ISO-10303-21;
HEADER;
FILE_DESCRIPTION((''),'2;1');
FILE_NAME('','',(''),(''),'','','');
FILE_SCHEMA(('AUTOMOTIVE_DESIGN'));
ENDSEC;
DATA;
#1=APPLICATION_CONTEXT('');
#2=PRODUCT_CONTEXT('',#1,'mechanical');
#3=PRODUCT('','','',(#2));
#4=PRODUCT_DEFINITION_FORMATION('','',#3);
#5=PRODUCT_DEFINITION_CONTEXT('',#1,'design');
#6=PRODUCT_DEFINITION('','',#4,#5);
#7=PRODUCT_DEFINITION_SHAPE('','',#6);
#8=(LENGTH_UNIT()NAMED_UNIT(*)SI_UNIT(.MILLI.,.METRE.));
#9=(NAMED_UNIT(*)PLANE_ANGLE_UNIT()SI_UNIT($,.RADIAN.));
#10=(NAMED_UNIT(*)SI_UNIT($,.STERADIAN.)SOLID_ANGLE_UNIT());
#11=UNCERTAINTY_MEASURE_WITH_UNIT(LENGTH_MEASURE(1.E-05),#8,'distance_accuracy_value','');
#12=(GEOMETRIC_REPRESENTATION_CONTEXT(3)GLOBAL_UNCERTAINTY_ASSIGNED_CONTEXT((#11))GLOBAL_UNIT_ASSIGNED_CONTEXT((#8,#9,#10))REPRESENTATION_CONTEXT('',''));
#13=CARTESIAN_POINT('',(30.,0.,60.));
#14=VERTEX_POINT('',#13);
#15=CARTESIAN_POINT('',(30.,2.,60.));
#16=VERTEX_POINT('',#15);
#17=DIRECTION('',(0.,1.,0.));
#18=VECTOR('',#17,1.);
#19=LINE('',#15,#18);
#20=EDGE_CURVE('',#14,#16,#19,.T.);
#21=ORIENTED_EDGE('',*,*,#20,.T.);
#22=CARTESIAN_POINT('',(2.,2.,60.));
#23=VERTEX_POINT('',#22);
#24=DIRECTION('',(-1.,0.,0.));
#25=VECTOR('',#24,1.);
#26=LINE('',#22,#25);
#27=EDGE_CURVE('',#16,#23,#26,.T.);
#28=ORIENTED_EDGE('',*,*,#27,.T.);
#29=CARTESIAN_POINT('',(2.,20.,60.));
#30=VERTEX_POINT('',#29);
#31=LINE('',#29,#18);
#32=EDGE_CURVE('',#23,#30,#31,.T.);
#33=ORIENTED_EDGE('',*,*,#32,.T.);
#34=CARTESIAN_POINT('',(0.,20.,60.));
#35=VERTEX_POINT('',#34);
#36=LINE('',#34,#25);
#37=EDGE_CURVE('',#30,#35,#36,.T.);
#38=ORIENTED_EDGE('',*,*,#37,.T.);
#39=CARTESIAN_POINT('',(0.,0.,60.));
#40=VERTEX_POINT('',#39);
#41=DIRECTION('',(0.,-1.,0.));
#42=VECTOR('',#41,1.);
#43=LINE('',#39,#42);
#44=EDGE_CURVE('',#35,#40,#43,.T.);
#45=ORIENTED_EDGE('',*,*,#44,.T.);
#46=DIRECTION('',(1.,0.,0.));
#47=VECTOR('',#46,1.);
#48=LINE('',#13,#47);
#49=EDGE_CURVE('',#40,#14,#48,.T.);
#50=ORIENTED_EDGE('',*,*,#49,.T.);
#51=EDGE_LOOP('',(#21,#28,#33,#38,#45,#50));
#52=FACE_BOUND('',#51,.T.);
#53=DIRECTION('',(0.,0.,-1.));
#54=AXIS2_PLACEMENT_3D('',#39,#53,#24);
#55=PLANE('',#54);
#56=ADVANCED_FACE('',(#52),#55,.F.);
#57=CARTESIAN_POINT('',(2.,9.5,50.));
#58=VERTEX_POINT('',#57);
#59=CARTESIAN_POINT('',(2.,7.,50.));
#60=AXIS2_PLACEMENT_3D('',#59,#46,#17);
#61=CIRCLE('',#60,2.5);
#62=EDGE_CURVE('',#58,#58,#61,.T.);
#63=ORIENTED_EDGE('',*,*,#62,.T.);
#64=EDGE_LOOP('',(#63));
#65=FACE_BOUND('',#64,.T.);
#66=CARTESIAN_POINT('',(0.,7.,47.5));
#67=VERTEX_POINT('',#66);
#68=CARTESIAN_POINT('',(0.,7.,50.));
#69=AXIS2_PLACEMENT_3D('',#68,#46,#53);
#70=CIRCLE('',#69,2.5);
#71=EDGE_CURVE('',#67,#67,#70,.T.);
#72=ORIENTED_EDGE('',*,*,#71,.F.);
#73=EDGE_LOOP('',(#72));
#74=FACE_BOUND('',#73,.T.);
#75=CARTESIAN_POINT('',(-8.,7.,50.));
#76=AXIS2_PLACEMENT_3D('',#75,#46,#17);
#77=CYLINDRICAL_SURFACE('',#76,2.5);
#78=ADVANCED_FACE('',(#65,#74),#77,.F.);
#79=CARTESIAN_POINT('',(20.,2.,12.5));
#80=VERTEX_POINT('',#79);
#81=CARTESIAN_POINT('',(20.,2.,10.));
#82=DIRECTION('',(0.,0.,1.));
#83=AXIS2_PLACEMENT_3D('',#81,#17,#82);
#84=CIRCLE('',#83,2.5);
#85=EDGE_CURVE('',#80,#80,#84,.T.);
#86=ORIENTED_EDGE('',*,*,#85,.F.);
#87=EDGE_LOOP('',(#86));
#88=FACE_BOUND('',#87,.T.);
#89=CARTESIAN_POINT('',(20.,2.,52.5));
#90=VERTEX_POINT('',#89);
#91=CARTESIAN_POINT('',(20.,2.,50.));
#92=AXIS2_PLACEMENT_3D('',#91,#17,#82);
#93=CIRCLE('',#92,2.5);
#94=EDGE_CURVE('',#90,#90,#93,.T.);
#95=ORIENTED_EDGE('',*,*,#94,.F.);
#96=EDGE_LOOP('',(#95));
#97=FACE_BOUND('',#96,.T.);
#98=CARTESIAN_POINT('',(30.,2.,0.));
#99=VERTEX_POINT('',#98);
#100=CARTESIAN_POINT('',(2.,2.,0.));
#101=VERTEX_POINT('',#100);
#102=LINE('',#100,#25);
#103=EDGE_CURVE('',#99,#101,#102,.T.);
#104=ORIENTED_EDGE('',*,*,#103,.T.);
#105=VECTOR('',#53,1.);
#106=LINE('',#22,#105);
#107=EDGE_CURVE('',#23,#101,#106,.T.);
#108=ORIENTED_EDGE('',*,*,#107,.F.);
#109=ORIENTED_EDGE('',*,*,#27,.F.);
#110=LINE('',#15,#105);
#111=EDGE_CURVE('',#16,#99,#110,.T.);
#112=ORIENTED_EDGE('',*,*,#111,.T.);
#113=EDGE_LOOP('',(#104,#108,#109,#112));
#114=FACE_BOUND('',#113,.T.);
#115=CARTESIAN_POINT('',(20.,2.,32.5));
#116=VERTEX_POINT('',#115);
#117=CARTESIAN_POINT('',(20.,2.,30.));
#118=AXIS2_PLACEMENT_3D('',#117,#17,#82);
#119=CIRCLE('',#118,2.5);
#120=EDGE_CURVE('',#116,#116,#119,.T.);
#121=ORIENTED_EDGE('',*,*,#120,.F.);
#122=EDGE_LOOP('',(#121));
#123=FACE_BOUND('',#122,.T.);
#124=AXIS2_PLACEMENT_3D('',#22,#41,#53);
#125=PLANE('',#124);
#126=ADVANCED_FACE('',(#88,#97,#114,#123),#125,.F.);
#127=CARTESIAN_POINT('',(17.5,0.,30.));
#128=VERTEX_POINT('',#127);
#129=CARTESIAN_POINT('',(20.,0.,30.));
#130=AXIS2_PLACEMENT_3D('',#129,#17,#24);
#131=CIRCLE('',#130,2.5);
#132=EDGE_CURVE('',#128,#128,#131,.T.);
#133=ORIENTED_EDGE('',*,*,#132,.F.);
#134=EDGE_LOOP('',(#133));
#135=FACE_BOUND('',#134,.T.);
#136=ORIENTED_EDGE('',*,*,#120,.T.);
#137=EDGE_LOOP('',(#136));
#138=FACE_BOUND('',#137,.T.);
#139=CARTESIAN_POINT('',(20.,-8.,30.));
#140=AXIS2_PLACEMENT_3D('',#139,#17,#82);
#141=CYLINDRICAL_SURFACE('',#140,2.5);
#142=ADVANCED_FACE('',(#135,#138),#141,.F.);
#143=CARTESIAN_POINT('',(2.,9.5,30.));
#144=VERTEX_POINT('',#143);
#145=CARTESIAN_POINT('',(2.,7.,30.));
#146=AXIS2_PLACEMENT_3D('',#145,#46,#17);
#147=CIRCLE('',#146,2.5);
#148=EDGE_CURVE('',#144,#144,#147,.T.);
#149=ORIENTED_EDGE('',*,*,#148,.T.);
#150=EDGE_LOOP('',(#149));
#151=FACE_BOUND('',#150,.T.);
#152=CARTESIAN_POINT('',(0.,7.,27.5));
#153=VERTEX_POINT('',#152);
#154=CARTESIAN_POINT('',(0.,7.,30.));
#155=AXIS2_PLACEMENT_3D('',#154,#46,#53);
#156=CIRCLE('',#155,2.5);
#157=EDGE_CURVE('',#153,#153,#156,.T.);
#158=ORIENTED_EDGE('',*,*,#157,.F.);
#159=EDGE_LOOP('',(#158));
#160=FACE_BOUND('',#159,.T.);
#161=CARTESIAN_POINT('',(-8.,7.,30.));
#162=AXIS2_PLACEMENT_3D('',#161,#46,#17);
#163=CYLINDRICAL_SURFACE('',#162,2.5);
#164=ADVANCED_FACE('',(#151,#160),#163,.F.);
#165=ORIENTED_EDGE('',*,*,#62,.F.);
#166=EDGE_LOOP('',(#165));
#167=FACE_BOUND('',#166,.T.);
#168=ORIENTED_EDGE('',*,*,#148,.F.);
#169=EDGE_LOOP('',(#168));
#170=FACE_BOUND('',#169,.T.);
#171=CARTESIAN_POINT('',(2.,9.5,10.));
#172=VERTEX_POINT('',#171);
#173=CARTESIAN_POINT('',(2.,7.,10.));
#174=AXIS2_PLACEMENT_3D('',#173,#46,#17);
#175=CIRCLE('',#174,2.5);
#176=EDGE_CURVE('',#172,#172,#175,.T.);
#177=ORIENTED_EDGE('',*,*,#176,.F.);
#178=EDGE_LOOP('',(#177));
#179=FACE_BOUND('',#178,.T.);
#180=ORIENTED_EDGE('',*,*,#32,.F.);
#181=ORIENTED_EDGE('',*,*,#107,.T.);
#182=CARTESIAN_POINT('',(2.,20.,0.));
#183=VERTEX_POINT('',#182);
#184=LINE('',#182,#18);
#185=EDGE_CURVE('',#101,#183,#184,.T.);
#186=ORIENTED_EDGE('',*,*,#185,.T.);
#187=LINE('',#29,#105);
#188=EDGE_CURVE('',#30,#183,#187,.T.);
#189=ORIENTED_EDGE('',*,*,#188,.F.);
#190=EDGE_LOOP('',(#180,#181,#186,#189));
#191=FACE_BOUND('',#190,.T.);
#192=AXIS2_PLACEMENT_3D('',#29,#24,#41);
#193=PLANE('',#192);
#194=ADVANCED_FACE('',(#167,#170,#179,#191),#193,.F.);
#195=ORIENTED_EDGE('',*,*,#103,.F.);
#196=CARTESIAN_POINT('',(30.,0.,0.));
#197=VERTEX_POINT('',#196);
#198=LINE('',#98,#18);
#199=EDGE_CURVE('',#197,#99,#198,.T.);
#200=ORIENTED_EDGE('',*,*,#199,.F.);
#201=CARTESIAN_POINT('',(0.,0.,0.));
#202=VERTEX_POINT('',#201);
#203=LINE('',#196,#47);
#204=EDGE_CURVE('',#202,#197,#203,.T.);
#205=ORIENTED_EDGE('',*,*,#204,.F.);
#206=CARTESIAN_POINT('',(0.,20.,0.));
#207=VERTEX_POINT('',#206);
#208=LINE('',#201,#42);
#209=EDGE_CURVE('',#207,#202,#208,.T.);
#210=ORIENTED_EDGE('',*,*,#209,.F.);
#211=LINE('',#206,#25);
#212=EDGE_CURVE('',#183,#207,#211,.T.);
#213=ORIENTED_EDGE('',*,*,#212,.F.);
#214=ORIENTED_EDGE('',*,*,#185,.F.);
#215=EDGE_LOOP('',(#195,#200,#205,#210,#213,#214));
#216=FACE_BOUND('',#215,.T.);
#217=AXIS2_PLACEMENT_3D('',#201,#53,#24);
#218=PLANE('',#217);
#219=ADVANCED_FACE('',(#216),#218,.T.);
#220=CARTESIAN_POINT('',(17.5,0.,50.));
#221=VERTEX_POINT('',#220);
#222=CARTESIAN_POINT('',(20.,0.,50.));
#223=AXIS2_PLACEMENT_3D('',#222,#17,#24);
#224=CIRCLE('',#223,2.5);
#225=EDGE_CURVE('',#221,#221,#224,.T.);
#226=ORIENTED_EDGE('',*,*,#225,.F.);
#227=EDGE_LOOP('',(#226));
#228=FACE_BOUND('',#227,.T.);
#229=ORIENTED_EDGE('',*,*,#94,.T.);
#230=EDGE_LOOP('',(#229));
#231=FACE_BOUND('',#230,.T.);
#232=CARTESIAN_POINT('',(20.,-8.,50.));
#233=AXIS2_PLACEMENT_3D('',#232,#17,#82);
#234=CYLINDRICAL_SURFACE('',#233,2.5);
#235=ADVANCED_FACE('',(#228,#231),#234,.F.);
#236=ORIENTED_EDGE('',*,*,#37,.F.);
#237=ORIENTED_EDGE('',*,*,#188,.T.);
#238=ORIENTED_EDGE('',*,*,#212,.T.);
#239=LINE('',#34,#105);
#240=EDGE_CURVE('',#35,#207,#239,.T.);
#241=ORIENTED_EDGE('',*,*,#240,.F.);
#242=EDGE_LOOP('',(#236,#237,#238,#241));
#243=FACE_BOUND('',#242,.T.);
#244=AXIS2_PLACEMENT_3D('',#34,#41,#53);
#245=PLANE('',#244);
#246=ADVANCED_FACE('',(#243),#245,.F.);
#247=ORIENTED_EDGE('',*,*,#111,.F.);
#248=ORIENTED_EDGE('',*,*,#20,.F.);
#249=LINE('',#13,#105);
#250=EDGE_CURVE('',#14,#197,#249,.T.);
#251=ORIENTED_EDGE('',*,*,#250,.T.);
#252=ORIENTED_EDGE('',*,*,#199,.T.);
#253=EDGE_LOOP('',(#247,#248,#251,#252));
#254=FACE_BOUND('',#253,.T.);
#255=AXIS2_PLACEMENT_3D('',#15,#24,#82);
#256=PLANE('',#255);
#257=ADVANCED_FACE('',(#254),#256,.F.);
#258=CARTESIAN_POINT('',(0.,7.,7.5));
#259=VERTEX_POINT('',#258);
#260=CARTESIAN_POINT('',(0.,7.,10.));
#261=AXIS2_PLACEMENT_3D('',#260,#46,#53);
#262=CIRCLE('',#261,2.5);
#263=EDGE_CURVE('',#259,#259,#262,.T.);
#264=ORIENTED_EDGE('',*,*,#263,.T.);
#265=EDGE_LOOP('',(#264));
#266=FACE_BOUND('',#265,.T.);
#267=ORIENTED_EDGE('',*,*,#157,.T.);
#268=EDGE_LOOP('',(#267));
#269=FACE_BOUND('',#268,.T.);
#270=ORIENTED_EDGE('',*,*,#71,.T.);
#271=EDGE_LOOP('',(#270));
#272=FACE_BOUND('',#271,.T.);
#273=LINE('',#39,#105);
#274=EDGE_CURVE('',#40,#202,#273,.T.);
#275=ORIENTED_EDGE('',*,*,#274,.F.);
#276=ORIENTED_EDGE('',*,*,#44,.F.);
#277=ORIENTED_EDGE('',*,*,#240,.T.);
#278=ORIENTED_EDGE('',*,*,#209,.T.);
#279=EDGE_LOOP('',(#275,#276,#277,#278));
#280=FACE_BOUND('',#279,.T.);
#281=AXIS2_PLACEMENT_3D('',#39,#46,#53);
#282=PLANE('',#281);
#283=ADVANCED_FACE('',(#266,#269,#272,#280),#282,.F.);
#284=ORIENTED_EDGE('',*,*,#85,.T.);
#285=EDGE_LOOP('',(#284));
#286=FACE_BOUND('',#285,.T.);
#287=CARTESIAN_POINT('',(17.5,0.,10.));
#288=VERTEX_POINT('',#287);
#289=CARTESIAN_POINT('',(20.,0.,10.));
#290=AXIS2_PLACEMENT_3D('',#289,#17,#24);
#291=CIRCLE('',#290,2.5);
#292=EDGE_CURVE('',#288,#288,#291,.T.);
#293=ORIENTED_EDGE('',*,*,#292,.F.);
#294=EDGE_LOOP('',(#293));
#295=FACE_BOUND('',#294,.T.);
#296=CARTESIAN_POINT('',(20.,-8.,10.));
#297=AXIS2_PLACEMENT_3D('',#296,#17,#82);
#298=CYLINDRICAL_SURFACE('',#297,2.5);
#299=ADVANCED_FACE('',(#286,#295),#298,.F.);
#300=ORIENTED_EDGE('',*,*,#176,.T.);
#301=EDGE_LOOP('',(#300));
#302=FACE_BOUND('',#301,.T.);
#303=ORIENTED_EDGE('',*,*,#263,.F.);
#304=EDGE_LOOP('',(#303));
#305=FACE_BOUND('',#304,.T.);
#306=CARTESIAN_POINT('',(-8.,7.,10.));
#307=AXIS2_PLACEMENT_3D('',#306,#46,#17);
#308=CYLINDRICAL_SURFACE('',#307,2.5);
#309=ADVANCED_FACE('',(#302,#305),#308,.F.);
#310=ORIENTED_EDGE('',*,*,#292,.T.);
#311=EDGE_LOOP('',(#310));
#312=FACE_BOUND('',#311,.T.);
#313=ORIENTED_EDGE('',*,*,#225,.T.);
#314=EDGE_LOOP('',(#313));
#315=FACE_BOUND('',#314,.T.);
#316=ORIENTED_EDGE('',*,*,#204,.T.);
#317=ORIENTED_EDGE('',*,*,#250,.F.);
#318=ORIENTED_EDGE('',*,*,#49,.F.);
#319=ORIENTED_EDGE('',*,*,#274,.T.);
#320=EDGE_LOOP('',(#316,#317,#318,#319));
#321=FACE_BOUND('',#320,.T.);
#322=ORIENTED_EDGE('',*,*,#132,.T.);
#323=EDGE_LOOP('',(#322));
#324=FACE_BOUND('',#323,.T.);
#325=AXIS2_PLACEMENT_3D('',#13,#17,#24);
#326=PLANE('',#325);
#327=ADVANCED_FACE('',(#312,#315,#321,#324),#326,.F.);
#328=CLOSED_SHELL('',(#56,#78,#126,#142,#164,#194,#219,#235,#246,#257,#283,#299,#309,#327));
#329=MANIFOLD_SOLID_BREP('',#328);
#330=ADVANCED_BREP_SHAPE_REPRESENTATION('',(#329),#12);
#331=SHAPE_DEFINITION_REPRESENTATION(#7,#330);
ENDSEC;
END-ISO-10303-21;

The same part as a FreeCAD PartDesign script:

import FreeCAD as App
import Part
import Sketcher
from FreeCAD import Vector
Q = App.Units.Quantity

doc = App.newDocument("Part")
body = doc.addObject("PartDesign::Body", "Body")

sketch1 = body.newObject("Sketcher::SketchObject", "Sketch")
sketch1.AttachmentSupport = (doc.getObject("XY_Plane"), [""])
sketch1.MapMode = "FlatFace"
sketch1.addGeometry([
    Part.LineSegment(Vector(0, 20, 0), Vector(0, 0, 0)),
    Part.LineSegment(Vector(0, 0, 0), Vector(30, 0, 0)),
    Part.LineSegment(Vector(30, 0, 0), Vector(30, 2, 0)),
    Part.LineSegment(Vector(30, 2, 0), Vector(2, 2, 0)),
    Part.LineSegment(Vector(2, 2, 0), Vector(2, 20, 0)),
    Part.LineSegment(Vector(2, 20, 0), Vector(0, 20, 0)),
], False)
sketch1.addConstraint([
    Sketcher.Constraint("Coincident", 0, 2, 1, 1),
    Sketcher.Constraint("Coincident", 1, 2, 2, 1),
    Sketcher.Constraint("Coincident", 2, 2, 3, 1),
    Sketcher.Constraint("Coincident", 3, 2, 4, 1),
    Sketcher.Constraint("Coincident", 4, 2, 5, 1),
    Sketcher.Constraint("Coincident", 5, 2, 0, 1),
    Sketcher.Constraint("Vertical", 0),
    Sketcher.Constraint("Horizontal", 1),
    Sketcher.Constraint("Vertical", 2),
    Sketcher.Constraint("Horizontal", 3),
    Sketcher.Constraint("Vertical", 4),
    Sketcher.Constraint("Horizontal", 5),
    Sketcher.Constraint("Coincident", 0, 2, -1, 1),
    Sketcher.Constraint("Equal", 5, 2),
    Sketcher.Constraint("DistanceX", 1, 1, 1, 2, Q("30 mm")),
    Sketcher.Constraint("DistanceX", 3, 2, 3, 1, Q("28 mm")),
    Sketcher.Constraint("DistanceY", 0, 2, 0, 1, Q("20 mm")),
])
pad1 = body.newObject("PartDesign::Pad", "Pad")
pad1.Profile = sketch1
pad1.Length = 60

sketch2 = body.newObject("Sketcher::SketchObject", "Sketch001")
sketch2.AttachmentSupport = (doc.getObject("XZ_Plane"), [""])
sketch2.MapMode = "FlatFace"
sketch2.AttachmentOffset = App.Placement(Vector(0, 0, -2), App.Rotation())
sketch2.addGeometry([
    Part.Circle(Vector(20, 30, 0), Vector(0, 0, 1), 2.5),
    Part.Circle(Vector(20, 10, 0), Vector(0, 0, 1), 2.5),
    Part.Circle(Vector(20, 50, 0), Vector(0, 0, 1), 2.5),
], False)
sketch2.addConstraint([
    Sketcher.Constraint("Equal", 0, 1),
    Sketcher.Constraint("Equal", 1, 2),
    Sketcher.Constraint("Vertical", 0, 3, 1, 3),
    Sketcher.Constraint("Vertical", 1, 3, 2, 3),
    Sketcher.Constraint("Diameter", 0, Q("5 mm")),
    Sketcher.Constraint("DistanceX", -1, 1, 0, 3, Q("20 mm")),
    Sketcher.Constraint("DistanceY", -1, 1, 0, 3, Q("30 mm")),
    Sketcher.Constraint("DistanceY", -1, 1, 1, 3, Q("10 mm")),
    Sketcher.Constraint("DistanceY", -1, 1, 2, 3, Q("50 mm")),
])
pocket1 = body.newObject("PartDesign::Pocket", "Pocket")
pocket1.Profile = sketch2
pocket1.Length = 10
pocket1.Reversed = True

sketch3 = body.newObject("Sketcher::SketchObject", "Sketch002")
sketch3.AttachmentSupport = (doc.getObject("YZ_Plane"), [""])
sketch3.MapMode = "FlatFace"
sketch3.AttachmentOffset = App.Placement(Vector(0, 0, 2), App.Rotation())
sketch3.addGeometry([
    Part.Circle(Vector(7, 30, 0), Vector(0, 0, 1), 2.5),
    Part.Circle(Vector(7, 10, 0), Vector(0, 0, 1), 2.5),
    Part.Circle(Vector(7, 50, 0), Vector(0, 0, 1), 2.5),
], False)
sketch3.addConstraint([
    Sketcher.Constraint("Equal", 0, 1),
    Sketcher.Constraint("Equal", 1, 2),
    Sketcher.Constraint("Vertical", 0, 3, 1, 3),
    Sketcher.Constraint("Vertical", 1, 3, 2, 3),
    Sketcher.Constraint("Diameter", 0, Q("5 mm")),
    Sketcher.Constraint("DistanceX", -1, 1, 0, 3, Q("7 mm")),
    Sketcher.Constraint("DistanceY", -1, 1, 0, 3, Q("30 mm")),
    Sketcher.Constraint("DistanceY", -1, 1, 1, 3, Q("10 mm")),
    Sketcher.Constraint("DistanceY", -1, 1, 2, 3, Q("50 mm")),
])
pocket2 = body.newObject("PartDesign::Pocket", "Pocket001")
pocket2.Profile = sketch3
pocket2.Length = 10

doc.recompute()
